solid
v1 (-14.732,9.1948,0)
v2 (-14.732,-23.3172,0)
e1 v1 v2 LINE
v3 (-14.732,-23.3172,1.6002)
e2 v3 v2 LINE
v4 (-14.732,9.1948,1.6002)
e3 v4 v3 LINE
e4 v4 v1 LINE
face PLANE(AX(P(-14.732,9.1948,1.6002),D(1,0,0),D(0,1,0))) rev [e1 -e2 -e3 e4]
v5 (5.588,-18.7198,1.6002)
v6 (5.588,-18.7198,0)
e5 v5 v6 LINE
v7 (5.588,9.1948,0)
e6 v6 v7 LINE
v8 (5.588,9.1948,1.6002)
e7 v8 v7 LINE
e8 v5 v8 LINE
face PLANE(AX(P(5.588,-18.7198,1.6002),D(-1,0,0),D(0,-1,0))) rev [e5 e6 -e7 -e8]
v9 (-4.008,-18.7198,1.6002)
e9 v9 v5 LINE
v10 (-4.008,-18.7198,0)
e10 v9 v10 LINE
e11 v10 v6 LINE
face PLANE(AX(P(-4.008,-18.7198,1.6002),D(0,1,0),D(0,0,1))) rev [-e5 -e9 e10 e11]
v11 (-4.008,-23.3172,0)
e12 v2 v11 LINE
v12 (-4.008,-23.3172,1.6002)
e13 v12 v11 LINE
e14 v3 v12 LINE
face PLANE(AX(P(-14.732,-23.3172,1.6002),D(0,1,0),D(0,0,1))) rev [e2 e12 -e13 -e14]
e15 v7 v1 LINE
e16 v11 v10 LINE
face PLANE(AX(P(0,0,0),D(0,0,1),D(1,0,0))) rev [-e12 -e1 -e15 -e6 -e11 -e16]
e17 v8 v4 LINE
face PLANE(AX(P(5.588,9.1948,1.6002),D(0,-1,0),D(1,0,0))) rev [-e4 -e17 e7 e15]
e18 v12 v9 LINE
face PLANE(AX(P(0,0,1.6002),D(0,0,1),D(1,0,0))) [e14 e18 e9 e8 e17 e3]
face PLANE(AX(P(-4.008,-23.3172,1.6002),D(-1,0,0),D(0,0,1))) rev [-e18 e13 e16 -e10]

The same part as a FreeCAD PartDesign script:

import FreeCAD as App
import Part
import Sketcher
from FreeCAD import Vector
Q = App.Units.Quantity


def add_polygon(sketch, points):
    """Adds a closed chain of lines whose ends are joined by coincident constraints."""
    first, n = sketch.GeometryCount, len(points)
    for a, b in zip(points, points[1:] + points[:1]):
        sketch.addGeometry(Part.LineSegment(App.Vector(*a, 0), App.Vector(*b, 0)), False)
    for i in range(n):
        sketch.addConstraint(Sketcher.Constraint("Coincident", first + i, 2, first + (i + 1) % n, 1))

doc = App.newDocument("Part")
params = doc.addObject("Spreadsheet::Sheet", "Params")
for row, (alias, value) in enumerate([
    ("sketch1_width", "0.8 in"),
    ("sketch1_height", "1.28 in"),
    ("sketch1_height2", "0.181 in"),
    ("pad1_length", "0.063 in"),
], start=1):
    params.set(f"A{row}", alias)
    params.set(f"B{row}", "=" + value)
    params.setAlias(f"B{row}", alias)

body = doc.addObject("PartDesign::Body", "Body")

sketch1 = doc.addObject("Sketcher::SketchObject", "Sketch")
body.addObject(sketch1)
sketch1.AttachmentSupport = (doc.XY_Plane, [""])
sketch1.MapMode = "FlatFace"
add_polygon(sketch1, [(-14.7, 9.2), (-14.7, -23.3), (-4, -23.3), (-4, -18.7), (5.6, -18.7), (5.6, 9.2)])
sketch1.addConstraint(Sketcher.Constraint("Vertical", 0))
sketch1.addConstraint(Sketcher.Constraint("Horizontal", 1))
sketch1.addConstraint(Sketcher.Constraint("Vertical", 2))
sketch1.addConstraint(Sketcher.Constraint("Horizontal", 3))
sketch1.addConstraint(Sketcher.Constraint("Vertical", 4))
sketch1.addConstraint(Sketcher.Constraint("Horizontal", 5))
sketch1.addConstraint(Sketcher.Constraint("DistanceX", 5, 2, 5, 1, Q("0.8 in")))
sketch1.addConstraint(Sketcher.Constraint("DistanceY", 0, 2, 0, 1, Q("1.28 in")))
sketch1.addConstraint(Sketcher.Constraint("DistanceY", 2, 1, 2, 2, Q("0.181 in")))
sketch1.addConstraint(Sketcher.Constraint("DistanceX", 0, 2, -1, 1, Q("0.58 in")))
sketch1.addConstraint(Sketcher.Constraint("DistanceY", 0, 2, -1, 1, Q("0.918 in")))
sketch1.addConstraint(Sketcher.Constraint("DistanceX", 1, 1, 1, 2, Q("10.724 mm")))
sketch1.setExpression("Constraints[12]", "Params.sketch1_width")
sketch1.setExpression("Constraints[13]", "Params.sketch1_height")
sketch1.setExpression("Constraints[14]", "Params.sketch1_height2")
pad1 = doc.addObject("PartDesign::Pad", "Pad")
body.addObject(pad1)
pad1.Profile = sketch1
pad1.setExpression("Length", "Params.pad1_length")

doc.recompute()
